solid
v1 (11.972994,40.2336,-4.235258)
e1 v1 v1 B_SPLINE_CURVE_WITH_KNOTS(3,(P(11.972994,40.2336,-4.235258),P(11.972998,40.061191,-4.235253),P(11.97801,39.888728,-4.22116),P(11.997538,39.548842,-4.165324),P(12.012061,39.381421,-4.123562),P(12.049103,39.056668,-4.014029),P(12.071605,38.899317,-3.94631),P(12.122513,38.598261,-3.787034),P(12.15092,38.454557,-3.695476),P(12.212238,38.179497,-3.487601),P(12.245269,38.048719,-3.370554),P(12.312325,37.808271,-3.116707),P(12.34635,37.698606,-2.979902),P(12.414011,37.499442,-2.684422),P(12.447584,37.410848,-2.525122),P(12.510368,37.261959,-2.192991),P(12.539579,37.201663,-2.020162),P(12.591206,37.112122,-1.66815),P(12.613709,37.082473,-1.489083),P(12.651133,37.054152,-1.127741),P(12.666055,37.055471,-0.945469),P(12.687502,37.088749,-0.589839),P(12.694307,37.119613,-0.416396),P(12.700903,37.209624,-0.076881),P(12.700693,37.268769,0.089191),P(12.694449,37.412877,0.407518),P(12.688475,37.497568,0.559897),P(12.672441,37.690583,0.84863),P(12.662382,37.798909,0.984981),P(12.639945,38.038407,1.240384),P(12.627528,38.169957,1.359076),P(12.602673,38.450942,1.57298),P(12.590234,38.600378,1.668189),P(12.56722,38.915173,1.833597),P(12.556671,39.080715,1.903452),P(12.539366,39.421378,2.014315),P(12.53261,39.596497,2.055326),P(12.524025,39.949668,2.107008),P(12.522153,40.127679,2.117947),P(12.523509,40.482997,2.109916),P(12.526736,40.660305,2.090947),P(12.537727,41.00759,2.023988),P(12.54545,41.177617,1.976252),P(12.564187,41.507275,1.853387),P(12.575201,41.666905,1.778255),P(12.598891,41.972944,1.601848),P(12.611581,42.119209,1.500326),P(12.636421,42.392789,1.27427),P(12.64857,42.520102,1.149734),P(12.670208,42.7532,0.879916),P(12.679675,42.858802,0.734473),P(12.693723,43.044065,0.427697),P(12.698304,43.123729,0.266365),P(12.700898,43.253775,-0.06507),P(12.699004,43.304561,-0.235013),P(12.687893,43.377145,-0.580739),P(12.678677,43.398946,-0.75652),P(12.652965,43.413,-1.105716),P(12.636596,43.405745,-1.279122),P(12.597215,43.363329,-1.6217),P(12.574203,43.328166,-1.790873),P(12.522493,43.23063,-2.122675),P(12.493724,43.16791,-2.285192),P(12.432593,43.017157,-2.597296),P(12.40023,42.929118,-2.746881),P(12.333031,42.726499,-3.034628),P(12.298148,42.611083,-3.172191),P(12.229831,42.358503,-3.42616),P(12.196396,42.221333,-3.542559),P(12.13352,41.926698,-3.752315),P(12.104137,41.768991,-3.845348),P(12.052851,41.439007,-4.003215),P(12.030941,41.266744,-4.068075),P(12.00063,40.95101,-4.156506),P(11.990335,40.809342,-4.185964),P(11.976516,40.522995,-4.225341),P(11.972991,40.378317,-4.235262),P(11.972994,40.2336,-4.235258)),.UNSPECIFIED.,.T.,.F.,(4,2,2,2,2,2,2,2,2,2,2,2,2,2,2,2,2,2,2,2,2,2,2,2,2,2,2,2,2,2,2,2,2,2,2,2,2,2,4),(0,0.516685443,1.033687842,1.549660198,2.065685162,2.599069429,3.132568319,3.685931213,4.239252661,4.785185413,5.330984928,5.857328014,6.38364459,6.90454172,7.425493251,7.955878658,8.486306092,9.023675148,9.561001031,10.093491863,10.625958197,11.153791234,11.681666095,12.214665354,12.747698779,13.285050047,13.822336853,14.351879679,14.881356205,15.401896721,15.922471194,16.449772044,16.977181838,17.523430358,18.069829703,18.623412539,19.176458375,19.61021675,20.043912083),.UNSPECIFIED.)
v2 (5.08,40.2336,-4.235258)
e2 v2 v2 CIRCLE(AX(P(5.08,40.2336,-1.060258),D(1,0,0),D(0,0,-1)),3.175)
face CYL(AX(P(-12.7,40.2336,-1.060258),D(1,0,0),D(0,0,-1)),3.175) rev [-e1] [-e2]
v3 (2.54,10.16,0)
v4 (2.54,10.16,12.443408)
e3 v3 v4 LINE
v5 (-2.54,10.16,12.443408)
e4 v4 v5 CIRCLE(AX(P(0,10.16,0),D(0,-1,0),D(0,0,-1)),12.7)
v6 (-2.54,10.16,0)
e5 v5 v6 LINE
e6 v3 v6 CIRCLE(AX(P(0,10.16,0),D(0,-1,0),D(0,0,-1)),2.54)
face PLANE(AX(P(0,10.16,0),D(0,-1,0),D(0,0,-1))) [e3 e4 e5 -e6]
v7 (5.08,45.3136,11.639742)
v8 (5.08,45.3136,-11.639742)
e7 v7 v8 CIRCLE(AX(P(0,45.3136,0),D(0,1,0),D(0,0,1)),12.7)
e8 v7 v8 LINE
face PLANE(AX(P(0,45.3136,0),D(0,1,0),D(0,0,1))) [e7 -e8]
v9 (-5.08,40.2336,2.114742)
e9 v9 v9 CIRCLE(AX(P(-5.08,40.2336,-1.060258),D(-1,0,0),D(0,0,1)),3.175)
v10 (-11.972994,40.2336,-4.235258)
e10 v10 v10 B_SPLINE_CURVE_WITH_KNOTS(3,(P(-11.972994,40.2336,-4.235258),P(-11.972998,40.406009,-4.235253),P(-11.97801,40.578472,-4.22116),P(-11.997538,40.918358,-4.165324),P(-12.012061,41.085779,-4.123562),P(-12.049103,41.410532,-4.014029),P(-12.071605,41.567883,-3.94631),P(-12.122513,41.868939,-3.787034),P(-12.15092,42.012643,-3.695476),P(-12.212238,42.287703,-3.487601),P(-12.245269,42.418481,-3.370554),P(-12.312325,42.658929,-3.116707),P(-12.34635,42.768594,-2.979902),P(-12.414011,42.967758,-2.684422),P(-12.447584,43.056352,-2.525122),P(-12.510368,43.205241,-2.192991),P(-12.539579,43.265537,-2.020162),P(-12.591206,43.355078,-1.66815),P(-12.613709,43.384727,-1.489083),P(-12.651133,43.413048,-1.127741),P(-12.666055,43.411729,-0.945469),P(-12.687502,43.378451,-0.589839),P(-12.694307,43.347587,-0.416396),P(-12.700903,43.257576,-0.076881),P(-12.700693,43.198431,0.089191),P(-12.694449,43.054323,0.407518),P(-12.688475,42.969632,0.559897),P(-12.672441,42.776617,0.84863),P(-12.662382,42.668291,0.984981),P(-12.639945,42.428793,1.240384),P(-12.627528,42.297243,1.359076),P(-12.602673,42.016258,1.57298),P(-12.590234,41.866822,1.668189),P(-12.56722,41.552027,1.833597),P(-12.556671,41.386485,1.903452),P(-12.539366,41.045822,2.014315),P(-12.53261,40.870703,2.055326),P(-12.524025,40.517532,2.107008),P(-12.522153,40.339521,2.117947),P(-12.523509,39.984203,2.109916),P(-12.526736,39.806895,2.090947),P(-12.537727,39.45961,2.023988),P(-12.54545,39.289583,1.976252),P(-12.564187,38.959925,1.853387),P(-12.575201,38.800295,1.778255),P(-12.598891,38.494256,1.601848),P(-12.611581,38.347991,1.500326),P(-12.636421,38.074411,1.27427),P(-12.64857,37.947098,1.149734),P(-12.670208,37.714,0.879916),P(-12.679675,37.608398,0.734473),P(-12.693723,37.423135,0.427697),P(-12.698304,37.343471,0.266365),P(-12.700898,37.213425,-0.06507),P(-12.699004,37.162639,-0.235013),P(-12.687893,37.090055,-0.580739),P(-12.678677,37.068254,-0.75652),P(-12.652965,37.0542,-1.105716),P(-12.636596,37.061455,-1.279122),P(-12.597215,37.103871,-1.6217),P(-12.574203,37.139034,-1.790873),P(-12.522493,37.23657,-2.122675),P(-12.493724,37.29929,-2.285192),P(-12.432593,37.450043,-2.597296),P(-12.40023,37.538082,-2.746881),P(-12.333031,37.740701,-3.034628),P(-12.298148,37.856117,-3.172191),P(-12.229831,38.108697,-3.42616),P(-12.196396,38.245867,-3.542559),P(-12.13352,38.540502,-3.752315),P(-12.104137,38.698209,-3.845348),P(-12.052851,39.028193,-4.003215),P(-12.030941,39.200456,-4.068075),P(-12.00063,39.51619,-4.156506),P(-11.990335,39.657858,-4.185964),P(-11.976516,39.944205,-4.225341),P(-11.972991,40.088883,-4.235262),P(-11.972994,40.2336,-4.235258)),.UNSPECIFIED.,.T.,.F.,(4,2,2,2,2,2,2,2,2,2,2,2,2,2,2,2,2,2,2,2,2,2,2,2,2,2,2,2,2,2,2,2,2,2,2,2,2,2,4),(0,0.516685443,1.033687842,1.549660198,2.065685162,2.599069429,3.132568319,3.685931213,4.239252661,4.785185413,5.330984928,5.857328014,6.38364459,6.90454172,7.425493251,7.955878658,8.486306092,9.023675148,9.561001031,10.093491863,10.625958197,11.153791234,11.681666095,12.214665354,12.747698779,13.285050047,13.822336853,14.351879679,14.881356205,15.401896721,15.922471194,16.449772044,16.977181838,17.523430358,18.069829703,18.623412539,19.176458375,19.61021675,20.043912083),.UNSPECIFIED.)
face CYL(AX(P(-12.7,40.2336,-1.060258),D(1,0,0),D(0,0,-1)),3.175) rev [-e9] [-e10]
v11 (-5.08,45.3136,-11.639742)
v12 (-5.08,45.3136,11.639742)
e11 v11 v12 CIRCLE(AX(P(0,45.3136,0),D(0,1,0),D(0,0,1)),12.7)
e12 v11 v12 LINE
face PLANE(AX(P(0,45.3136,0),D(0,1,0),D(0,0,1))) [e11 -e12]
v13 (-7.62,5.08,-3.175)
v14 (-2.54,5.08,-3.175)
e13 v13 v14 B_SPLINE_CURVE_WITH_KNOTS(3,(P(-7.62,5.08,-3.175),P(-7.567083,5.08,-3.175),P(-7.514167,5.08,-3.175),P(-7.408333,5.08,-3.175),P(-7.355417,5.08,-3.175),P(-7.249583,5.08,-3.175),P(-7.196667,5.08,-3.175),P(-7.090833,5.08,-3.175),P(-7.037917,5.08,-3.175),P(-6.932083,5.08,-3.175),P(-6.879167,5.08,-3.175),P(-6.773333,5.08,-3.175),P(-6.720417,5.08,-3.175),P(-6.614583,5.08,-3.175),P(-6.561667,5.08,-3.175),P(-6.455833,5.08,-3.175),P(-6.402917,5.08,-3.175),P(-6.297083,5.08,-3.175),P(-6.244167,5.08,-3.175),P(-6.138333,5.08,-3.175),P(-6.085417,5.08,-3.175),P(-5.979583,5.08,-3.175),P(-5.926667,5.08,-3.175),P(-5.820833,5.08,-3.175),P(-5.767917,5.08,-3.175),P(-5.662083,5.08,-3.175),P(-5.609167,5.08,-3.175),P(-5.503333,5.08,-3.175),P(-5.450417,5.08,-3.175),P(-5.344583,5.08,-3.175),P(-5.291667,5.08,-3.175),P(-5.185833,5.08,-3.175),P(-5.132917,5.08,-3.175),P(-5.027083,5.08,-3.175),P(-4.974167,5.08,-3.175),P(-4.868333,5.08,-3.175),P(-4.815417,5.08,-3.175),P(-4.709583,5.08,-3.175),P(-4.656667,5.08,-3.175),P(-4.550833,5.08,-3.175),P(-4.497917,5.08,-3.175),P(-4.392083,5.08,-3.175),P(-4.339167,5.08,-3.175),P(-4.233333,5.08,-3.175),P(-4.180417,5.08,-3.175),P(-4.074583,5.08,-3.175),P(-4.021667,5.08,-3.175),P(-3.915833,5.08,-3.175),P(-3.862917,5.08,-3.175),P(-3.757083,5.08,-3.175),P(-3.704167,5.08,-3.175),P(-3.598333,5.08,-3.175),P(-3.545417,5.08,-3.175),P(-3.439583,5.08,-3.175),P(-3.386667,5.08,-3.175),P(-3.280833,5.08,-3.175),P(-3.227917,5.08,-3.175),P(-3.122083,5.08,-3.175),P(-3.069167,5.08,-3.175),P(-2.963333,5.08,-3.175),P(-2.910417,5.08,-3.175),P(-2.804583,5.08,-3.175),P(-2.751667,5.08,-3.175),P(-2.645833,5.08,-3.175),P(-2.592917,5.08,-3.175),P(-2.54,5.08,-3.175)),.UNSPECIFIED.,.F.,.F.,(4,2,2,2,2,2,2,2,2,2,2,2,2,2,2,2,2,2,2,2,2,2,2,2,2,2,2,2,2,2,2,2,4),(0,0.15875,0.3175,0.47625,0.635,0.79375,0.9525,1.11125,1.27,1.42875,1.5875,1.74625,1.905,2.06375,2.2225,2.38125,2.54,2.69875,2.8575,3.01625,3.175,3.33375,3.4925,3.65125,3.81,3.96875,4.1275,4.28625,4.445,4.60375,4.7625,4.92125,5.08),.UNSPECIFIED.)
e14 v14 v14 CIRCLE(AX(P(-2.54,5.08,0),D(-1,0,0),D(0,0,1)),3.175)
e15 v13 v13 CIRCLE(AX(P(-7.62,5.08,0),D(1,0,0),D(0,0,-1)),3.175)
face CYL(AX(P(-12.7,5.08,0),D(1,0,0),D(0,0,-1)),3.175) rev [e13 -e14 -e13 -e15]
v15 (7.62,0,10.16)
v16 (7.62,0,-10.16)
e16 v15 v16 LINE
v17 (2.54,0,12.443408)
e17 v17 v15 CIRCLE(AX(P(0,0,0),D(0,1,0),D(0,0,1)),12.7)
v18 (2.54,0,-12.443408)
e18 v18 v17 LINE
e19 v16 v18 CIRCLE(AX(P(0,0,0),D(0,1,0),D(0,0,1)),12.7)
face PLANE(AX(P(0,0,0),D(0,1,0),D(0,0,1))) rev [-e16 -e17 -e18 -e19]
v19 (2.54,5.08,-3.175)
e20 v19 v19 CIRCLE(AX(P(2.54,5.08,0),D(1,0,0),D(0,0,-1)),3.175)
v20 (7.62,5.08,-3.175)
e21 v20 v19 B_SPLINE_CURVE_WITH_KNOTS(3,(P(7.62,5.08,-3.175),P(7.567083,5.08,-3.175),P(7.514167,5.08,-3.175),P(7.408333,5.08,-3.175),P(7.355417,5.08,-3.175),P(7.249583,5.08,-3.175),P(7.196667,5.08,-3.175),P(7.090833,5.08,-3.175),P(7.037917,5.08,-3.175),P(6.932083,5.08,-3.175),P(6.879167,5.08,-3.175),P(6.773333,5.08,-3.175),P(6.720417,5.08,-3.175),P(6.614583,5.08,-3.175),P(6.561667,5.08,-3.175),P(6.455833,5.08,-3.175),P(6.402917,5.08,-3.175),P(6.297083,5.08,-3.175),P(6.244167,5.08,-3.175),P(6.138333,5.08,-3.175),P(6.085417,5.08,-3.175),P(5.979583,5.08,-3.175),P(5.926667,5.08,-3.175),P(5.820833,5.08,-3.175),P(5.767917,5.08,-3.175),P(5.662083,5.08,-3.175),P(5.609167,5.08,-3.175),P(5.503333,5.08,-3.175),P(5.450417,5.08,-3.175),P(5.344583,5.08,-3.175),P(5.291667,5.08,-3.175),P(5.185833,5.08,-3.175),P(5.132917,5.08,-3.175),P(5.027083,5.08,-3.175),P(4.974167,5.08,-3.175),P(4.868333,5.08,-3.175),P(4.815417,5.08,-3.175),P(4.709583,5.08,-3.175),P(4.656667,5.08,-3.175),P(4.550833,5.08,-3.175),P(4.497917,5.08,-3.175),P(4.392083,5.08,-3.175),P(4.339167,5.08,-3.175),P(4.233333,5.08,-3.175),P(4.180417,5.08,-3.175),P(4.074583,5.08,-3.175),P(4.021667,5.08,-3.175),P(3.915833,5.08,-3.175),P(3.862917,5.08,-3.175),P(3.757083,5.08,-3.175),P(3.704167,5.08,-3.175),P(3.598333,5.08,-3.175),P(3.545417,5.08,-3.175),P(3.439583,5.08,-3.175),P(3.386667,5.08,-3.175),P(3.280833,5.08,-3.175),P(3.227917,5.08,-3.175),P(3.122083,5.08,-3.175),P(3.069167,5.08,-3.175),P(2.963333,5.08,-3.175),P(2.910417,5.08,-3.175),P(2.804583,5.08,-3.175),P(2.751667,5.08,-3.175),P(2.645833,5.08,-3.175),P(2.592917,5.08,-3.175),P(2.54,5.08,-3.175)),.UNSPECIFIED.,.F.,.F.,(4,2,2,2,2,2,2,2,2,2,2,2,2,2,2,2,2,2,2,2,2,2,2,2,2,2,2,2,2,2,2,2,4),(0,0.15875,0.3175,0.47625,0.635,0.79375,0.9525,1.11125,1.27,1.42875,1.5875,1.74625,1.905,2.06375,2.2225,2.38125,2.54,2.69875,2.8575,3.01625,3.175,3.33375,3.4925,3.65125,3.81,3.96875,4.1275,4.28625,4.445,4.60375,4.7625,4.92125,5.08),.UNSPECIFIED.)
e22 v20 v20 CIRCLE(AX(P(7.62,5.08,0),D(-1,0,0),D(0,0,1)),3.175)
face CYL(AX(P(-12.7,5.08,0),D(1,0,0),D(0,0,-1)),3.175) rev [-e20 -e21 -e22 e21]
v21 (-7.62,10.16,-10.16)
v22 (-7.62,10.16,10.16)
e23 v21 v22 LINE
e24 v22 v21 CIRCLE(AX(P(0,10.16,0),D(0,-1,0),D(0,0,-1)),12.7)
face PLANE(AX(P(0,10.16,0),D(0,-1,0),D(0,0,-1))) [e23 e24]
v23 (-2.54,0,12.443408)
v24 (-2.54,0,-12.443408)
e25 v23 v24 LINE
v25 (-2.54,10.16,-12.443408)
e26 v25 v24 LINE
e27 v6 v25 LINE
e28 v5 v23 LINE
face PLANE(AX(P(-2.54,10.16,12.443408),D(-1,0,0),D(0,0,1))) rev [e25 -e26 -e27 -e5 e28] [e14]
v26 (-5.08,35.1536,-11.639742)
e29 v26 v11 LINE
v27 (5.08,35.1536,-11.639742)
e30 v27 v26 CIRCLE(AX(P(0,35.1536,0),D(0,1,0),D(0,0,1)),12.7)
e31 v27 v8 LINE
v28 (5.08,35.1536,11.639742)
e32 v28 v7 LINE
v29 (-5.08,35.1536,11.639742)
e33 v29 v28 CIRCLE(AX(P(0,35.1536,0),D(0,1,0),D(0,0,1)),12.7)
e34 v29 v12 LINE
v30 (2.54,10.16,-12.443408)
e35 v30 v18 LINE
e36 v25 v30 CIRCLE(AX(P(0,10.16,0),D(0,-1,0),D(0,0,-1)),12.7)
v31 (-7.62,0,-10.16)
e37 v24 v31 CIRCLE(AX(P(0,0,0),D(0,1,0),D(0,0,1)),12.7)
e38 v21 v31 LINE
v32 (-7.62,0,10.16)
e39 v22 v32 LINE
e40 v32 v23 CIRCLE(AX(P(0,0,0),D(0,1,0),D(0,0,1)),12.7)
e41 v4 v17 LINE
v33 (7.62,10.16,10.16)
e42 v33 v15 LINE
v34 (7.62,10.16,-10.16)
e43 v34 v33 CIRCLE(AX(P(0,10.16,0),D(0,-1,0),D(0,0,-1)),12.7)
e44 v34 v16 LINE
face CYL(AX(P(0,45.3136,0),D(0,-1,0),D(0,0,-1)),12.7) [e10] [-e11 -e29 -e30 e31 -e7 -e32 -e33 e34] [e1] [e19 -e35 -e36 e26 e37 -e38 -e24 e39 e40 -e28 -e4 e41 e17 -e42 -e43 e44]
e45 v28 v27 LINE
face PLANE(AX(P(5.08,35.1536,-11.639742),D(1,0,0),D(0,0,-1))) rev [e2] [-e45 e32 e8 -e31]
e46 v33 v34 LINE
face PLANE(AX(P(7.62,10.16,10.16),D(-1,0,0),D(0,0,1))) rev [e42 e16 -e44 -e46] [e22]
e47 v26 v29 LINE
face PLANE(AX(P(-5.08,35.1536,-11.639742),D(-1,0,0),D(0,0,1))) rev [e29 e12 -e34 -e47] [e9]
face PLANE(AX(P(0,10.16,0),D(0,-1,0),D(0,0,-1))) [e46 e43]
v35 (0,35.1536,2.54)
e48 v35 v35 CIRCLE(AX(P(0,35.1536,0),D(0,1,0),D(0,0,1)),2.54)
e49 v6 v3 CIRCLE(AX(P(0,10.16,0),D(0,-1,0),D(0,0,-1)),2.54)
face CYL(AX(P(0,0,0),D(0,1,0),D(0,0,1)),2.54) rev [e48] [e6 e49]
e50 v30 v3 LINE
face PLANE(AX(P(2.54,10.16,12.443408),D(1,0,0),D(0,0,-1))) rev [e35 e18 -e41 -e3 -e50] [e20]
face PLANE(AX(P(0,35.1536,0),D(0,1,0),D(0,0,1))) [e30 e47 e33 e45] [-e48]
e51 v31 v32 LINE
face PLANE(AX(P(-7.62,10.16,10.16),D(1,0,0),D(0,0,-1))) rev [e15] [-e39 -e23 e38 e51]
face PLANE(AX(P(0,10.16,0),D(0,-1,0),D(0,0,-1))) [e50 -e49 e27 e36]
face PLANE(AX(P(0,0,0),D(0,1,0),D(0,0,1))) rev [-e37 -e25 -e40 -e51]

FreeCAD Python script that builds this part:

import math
import FreeCAD as App
import Part
import Sketcher
Q = App.Units.Quantity

doc = App.newDocument("Part")
body = doc.addObject("PartDesign::Body", "Body")

# Sketch on XZ plane
sketch1 = doc.addObject("Sketcher::SketchObject", "Sketch")
body.addObject(sketch1)
sketch1.AttachmentSupport = (doc.XZ_Plane, [""])
sketch1.MapMode = "FlatFace"
sketch1.addGeometry(Part.Circle(App.Vector(0, 0, 0), App.Vector(0, 0, 1), 13), False)
sketch1.addConstraint([
    Sketcher.Constraint("Coincident", 0, 3, -1, 1),
    Sketcher.Constraint("Diameter", 0, Q("1 in")),
])
pad1 = doc.addObject("PartDesign::Pad", "Pad")
body.addObject(pad1)
pad1.Profile = sketch1
pad1.Length = Q("1.784 in")
pad1.Reversed = True

# Sketch on XZ plane
sketch2 = doc.addObject("Sketcher::SketchObject", "Sketch001")
body.addObject(sketch2)
sketch2.AttachmentSupport = (doc.XZ_Plane, [""])
sketch2.MapMode = "FlatFace"
sketch2.AttachmentOffset = App.Placement(App.Vector(0, 0, -1.384 * 25.4), App.Rotation())
sketch2.addGeometry([
    Part.LineSegment(App.Vector(5, 12, 0), App.Vector(5, -12, 0)),
    Part.ArcOfCircle(Part.Circle(App.Vector(0, 0, 0), App.Vector(0, 0, 1), 13), math.radians(-114), math.radians(-66)),
    Part.LineSegment(App.Vector(-5, -12, 0), App.Vector(-5, 12, 0)),
    Part.ArcOfCircle(Part.Circle(App.Vector(0, 0, 0), App.Vector(0, 0, 1), 13), math.radians(66), math.radians(114)),
], False)
sketch2.addConstraint([
    Sketcher.Constraint("Coincident", 0, 2, 1, 2),
    Sketcher.Constraint("Coincident", 1, 1, 2, 1),
    Sketcher.Constraint("Coincident", 2, 2, 3, 2),
    Sketcher.Constraint("Coincident", 3, 1, 0, 1),
    Sketcher.Constraint("Vertical", 0),
    Sketcher.Constraint("Vertical", 2),
    Sketcher.Constraint("Coincident", 1, 3, -1, 1),
    Sketcher.Constraint("Coincident", 3, 3, -1, 1),
    Sketcher.Constraint("Equal", 1, 3),
    Sketcher.Constraint("Horizontal", 0, 2, 1, 1),
    Sketcher.Constraint("Radius", 1, Q("0.5 in")),
    Sketcher.Constraint("DistanceX", -1, 1, 0, 2, Q("0.2 in")),
])
pocket1 = doc.addObject("PartDesign::Pocket", "Pocket")
body.addObject(pocket1)
pocket1.Profile = sketch2
pocket1.Length = Q("0.4 in")

# Sketch on XZ plane
sketch3 = doc.addObject("Sketcher::SketchObject", "Sketch002")
body.addObject(sketch3)
sketch3.AttachmentSupport = (doc.XZ_Plane, [""])
sketch3.MapMode = "FlatFace"
sketch3.addGeometry([
    Part.LineSegment(App.Vector(-3, 12, 0), App.Vector(-3, -12, 0)),  # 0
    Part.ArcOfCircle(Part.Circle(App.Vector(0, 0, 0), App.Vector(0, 0, 1), 13), math.radians(-102), math.radians(-78)),  # 1
    Part.LineSegment(App.Vector(3, -12, 0), App.Vector(3, 12, 0)),  # 2
    Part.ArcOfCircle(Part.Circle(App.Vector(0, 0, 0), App.Vector(0, 0, 1), 13), math.radians(78), math.radians(102)),  # 3
    Part.LineSegment(App.Vector(-8, -10, 0), App.Vector(-8, 10, 0)),  # 4
    Part.ArcOfCircle(Part.Circle(App.Vector(0, 0, 0), App.Vector(0, 0, 1), 13), math.radians(127), math.radians(233)),  # 5
    Part.LineSegment(App.Vector(8, 10, 0), App.Vector(8, -10, 0)),  # 6
    Part.ArcOfCircle(Part.Circle(App.Vector(0, 0, 0), App.Vector(0, 0, 1), 13), math.radians(-53), math.radians(53)),  # 7
], False)
sketch3.addConstraint([
    Sketcher.Constraint("Coincident", 0, 2, 1, 1),
    Sketcher.Constraint("Coincident", 1, 2, 2, 1),
    Sketcher.Constraint("Coincident", 2, 2, 3, 1),
    Sketcher.Constraint("Coincident", 3, 2, 0, 1),
    Sketcher.Constraint("Coincident", 4, 1, 5, 2),
    Sketcher.Constraint("Coincident", 5, 1, 4, 2),
    Sketcher.Constraint("Coincident", 6, 1, 7, 2),
    Sketcher.Constraint("Coincident", 7, 1, 6, 2),
    Sketcher.Constraint("Vertical", 0),
    Sketcher.Constraint("Vertical", 2),
    Sketcher.Constraint("Vertical", 4),
    Sketcher.Constraint("Vertical", 6),
    Sketcher.Constraint("Coincident", 1, 3, -1, 1),
    Sketcher.Constraint("Coincident", 3, 3, -1, 1),
    Sketcher.Constraint("Coincident", 5, 3, -1, 1),
    Sketcher.Constraint("Coincident", 7, 3, -1, 1),
    Sketcher.Constraint("Equal", 1, 3),
    Sketcher.Constraint("Equal", 3, 5),
    Sketcher.Constraint("Equal", 5, 7),
    Sketcher.Constraint("Horizontal", 0, 2, 1, 2),
    Sketcher.Constraint("Horizontal", 5, 1, 6, 1),
    Sketcher.Constraint("Radius", 1, Q("0.5 in")),
    Sketcher.Constraint("DistanceY", 4, 1, 4, 2, Q("0.8 in")),
    Sketcher.Constraint("DistanceX", 0, 2, -1, 1, Q("0.1 in")),
])
pocket2 = doc.addObject("PartDesign::Pocket", "Pocket001")
body.addObject(pocket2)
pocket2.Profile = sketch3
pocket2.Length = Q("0.4 in")

# Sketch on YZ plane
sketch4 = doc.addObject("Sketcher::SketchObject", "Sketch003")
body.addObject(sketch4)
sketch4.AttachmentSupport = (doc.YZ_Plane, [""])
sketch4.MapMode = "FlatFace"
sketch4.AttachmentOffset = App.Placement(App.Vector(0, 0, -0.2 * 25.4), App.Rotation())
sketch4.addGeometry([
    Part.Circle(App.Vector(40.2, -1.1, 0), App.Vector(0, 0, 1), 3.2),
    Part.Circle(App.Vector(5.1, 0, 0), App.Vector(0, 0, 1), 3.2),
], False)
sketch4.addConstraint([
    Sketcher.Constraint("Equal", 0, 1),
    Sketcher.Constraint("PointOnObject", 1, 3, -1),
    Sketcher.Constraint("Diameter", 0, Q("0.25 in")),
    Sketcher.Constraint("DistanceX", -1, 1, 1, 3, Q("0.2 in")),
    Sketcher.Constraint("DistanceX", -1, 1, 0, 3, Q("1.584 in")),
    Sketcher.Constraint("DistanceY", 0, 3, -1, 1, 1.060258),
])
pocket3 = doc.addObject("PartDesign::Pocket", "Pocket002")
body.addObject(pocket3)
pocket3.Profile = sketch4
pocket3.Type = "ThroughAll"
pocket3.Midplane = True

# Sketch on XZ plane
sketch5 = doc.addObject("Sketcher::SketchObject", "Sketch004")
body.addObject(sketch5)
sketch5.AttachmentSupport = (doc.XZ_Plane, [""])
sketch5.MapMode = "FlatFace"
sketch5.AttachmentOffset = App.Placement(App.Vector(0, 0, -1.384 * 25.4), App.Rotation())
sketch5.addGeometry(Part.Circle(App.Vector(0, 0, 0), App.Vector(0, 0, 1), 2.5), False)
sketch5.addConstraint([
    Sketcher.Constraint("Coincident", 0, 3, -1, 1),
    Sketcher.Constraint("Diameter", 0, Q("0.2 in")),
])
pocket4 = doc.addObject("PartDesign::Pocket", "Pocket003")
body.addObject(pocket4)
pocket4.Profile = sketch5
pocket4.Type = "ThroughAll"
pocket4.Reversed = True

doc.recompute()
